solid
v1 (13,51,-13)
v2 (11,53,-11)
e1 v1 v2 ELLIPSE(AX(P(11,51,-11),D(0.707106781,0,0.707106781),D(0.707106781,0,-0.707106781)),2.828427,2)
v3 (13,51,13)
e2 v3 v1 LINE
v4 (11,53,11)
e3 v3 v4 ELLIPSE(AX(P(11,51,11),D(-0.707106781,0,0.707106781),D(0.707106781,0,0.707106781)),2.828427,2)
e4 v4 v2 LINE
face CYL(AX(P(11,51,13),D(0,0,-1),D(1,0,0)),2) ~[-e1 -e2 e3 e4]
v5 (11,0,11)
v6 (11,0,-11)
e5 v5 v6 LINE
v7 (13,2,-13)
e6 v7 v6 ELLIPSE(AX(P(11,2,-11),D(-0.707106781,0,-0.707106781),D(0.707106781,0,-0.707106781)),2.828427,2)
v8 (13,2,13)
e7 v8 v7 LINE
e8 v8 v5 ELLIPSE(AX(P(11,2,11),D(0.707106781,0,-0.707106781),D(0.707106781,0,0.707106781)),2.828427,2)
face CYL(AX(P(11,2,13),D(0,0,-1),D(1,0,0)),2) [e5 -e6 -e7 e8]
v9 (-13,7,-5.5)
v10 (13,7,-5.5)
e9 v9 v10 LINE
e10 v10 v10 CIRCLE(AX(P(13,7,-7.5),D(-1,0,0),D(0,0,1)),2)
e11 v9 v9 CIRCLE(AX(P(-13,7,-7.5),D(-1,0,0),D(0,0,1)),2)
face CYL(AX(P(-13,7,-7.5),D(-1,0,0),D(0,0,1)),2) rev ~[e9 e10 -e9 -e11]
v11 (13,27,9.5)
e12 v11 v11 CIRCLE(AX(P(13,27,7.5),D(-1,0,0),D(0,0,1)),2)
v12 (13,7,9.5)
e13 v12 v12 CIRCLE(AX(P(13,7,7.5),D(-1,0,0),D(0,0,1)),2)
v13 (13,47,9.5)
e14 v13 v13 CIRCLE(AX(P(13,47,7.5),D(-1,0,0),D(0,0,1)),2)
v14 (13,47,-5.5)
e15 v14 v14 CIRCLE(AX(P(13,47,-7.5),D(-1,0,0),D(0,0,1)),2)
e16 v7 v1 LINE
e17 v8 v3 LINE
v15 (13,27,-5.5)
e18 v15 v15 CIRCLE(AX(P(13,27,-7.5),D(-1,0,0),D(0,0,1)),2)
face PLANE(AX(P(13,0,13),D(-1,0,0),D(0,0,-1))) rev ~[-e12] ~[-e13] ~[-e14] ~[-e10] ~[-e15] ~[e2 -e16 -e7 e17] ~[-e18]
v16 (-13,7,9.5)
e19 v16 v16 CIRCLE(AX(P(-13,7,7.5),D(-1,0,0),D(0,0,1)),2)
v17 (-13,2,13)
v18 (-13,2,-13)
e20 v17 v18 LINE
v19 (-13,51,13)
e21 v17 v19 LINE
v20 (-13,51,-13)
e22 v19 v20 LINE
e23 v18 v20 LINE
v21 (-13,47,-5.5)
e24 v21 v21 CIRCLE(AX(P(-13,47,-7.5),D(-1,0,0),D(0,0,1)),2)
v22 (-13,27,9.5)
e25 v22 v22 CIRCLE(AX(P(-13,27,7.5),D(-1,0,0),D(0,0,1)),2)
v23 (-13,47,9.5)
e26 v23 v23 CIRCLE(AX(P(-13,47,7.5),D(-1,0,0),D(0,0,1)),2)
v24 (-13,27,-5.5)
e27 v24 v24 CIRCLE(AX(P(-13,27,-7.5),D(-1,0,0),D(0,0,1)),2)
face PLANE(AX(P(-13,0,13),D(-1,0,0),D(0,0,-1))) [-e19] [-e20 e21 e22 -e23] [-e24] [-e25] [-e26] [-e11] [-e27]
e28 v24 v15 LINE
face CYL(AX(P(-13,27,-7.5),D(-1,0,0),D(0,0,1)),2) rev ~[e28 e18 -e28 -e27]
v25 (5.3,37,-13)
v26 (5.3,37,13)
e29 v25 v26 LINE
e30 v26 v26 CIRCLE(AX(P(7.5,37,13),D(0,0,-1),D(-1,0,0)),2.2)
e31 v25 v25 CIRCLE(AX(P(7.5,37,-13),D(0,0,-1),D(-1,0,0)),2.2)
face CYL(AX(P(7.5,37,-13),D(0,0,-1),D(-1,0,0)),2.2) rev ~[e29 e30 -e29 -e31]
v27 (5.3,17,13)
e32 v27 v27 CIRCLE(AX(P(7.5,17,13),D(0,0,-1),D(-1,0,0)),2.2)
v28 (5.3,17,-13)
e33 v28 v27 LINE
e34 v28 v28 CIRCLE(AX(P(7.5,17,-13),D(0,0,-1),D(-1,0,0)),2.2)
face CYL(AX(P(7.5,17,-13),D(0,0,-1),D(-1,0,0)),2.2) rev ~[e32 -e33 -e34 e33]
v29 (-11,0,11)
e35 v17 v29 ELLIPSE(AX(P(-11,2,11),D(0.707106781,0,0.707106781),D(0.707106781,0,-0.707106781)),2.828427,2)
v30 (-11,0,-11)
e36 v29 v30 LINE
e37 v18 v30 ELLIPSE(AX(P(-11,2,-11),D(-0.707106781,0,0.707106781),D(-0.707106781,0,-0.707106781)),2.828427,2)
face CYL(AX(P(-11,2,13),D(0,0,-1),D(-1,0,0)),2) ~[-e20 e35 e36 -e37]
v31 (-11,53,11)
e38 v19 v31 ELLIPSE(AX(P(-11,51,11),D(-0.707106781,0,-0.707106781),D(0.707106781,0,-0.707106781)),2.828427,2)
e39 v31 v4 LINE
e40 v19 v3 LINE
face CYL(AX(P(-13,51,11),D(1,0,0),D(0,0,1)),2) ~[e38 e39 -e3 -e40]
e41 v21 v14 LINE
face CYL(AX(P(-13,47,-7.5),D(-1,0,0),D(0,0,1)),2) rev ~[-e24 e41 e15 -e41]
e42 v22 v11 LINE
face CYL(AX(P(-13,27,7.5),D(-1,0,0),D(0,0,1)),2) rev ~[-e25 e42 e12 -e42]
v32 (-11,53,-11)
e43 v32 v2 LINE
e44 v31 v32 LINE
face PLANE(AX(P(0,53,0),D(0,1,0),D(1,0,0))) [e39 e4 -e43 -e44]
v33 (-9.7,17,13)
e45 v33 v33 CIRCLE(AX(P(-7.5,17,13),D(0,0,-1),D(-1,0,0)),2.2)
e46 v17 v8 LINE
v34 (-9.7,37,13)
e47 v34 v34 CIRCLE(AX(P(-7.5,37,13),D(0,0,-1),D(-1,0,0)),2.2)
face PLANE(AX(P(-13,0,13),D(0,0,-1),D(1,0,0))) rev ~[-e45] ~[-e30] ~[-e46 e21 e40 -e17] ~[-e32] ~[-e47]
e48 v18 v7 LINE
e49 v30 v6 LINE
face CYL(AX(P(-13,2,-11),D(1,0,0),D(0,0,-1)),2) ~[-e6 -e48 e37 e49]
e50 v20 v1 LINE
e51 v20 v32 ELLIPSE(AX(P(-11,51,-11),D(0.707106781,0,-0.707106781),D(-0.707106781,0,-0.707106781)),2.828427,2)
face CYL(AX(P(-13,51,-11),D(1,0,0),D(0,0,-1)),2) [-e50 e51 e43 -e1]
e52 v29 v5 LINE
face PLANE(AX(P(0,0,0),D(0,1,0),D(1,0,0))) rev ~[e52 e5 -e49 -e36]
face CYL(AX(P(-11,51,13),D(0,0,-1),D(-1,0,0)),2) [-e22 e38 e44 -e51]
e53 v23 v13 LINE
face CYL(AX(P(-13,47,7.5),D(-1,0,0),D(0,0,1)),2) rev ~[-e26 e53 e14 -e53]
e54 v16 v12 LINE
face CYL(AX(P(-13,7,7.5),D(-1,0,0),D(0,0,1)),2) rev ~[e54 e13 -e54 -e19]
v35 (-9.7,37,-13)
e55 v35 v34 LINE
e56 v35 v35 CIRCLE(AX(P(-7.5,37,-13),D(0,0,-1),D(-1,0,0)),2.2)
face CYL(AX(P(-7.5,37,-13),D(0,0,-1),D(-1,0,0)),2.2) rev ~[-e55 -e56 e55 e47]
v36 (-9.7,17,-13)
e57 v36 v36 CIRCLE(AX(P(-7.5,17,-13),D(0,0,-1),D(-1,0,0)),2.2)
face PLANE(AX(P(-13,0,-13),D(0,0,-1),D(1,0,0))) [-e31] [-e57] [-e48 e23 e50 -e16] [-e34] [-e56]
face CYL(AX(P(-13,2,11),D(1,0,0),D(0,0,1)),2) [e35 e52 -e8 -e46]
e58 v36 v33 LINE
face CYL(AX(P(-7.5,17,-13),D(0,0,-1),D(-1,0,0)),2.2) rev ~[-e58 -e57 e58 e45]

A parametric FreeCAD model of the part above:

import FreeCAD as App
import Part
import Sketcher

V = App.Vector
Q = App.Units.Quantity


def edges_at(feature, points):
    """Names of the edges that pass closest to the given points."""
    edges = feature.Shape.Edges
    near = lambda p: min(range(len(edges)), key=lambda i: edges[i].distToShape(Part.Vertex(*p))[0])
    return sorted({f"Edge{near(p) + 1}" for p in points})


def add_polygon(sketch, points):
    """Adds a closed chain of lines whose ends are joined by coincident constraints."""
    first, n = sketch.GeometryCount, len(points)
    for a, b in zip(points, points[1:] + points[:1]):
        sketch.addGeometry(Part.LineSegment(App.Vector(*a, 0), App.Vector(*b, 0)), False)
    for i in range(n):
        sketch.addConstraint(Sketcher.Constraint("Coincident", first + i, 2, first + (i + 1) % n, 1))

doc = App.newDocument("Part")
body = doc.addObject("PartDesign::Body", "Body")

# Sketch on XZ plane
sketch1 = body.newObject("Sketcher::SketchObject", "Sketch")
sketch1.AttachmentSupport = (doc.getObject("XZ_Plane"), [""])
sketch1.MapMode = "FlatFace"
add_polygon(sketch1, [(-13, -13), (-13, 13), (13, 13), (13, -13)])  # lines 0-3
sketch1.addConstraint(Sketcher.Constraint("Vertical", 0))
sketch1.addConstraint(Sketcher.Constraint("Horizontal", 1))
sketch1.addConstraint(Sketcher.Constraint("Vertical", 2))
sketch1.addConstraint(Sketcher.Constraint("Horizontal", 3))
sketch1.addConstraint(Sketcher.Constraint("Symmetric", 0, 2, 2, 2, -1, 1))
sketch1.addConstraint(Sketcher.Constraint("Equal", 3, 0))
sketch1.addConstraint(Sketcher.Constraint("DistanceX", 1, 1, 1, 2, Q("26 mm")))
pad1 = body.newObject("PartDesign::Pad", "Pad")
pad1.Profile = sketch1
pad1.Length = 53
pad1.Reversed = True
doc.recompute()

fillet = body.newObject("PartDesign::Fillet", "Fillet")
fillet.Base = (pad1, edges_at(pad1, [
    (-13, 53, 0),
    (0, 53, 13),
    (13, 53, 0),
    (0, 0, 13),
    (-13, 0, 0),
    (0, 0, -13),
    (13, 0, 0),
    (0, 53, -13),
]))
fillet.Radius = 2

# Sketch on XY plane
sketch2 = body.newObject("Sketcher::SketchObject", "Sketch001")
sketch2.AttachmentSupport = (doc.getObject("XY_Plane"), [""])
sketch2.MapMode = "FlatFace"
sketch2.AttachmentOffset = App.Placement(V(0, 0, 13), App.Rotation())
sketch2.addGeometry(Part.Circle(V(-7.5, 37, 0), V(0, 0, 1), 1.6), False)
sketch2.addConstraint(Sketcher.Constraint("Diameter", 0, Q("3.1 mm")))
sketch2.addConstraint(Sketcher.Constraint("DistanceY", -1, 1, 0, 3, Q("37 mm")))
sketch2.addConstraint(Sketcher.Constraint("DistanceX", 0, 3, -1, 1, Q("7.5 mm")))
pocket1 = body.newObject("PartDesign::Pocket", "Pocket")
pocket1.Profile = sketch2
pocket1.Type = "UpToFirst"

# Sketch on XY plane
sketch3 = body.newObject("Sketcher::SketchObject", "Sketch002")
sketch3.AttachmentSupport = (doc.getObject("XY_Plane"), [""])
sketch3.MapMode = "FlatFace"
sketch3.AttachmentOffset = App.Placement(V(0, 0, 13), App.Rotation())
sketch3.addGeometry(Part.Circle(V(7.5, 37, 0), V(0, 0, 1), 1.6), False)
sketch3.addConstraint(Sketcher.Constraint("Diameter", 0, Q("3.1 mm")))
sketch3.addConstraint(Sketcher.Constraint("DistanceY", -1, 1, 0, 3, Q("37 mm")))
sketch3.addConstraint(Sketcher.Constraint("DistanceX", -1, 1, 0, 3, Q("7.5 mm")))
pocket2 = body.newObject("PartDesign::Pocket", "Pocket001")
pocket2.Profile = sketch3
pocket2.Type = "UpToFirst"

# Sketch on XY plane
sketch4 = body.newObject("Sketcher::SketchObject", "Sketch003")
sketch4.AttachmentSupport = (doc.getObject("XY_Plane"), [""])
sketch4.MapMode = "FlatFace"
sketch4.AttachmentOffset = App.Placement(V(0, 0, 13), App.Rotation())
sketch4.addGeometry(Part.Circle(V(-7.5, 17, 0), V(0, 0, 1), 1.6), False)
sketch4.addConstraint(Sketcher.Constraint("Diameter", 0, Q("3.1 mm")))
sketch4.addConstraint(Sketcher.Constraint("DistanceY", -1, 1, 0, 3, Q("17 mm")))
sketch4.addConstraint(Sketcher.Constraint("DistanceX", 0, 3, -1, 1, Q("7.5 mm")))
pocket3 = body.newObject("PartDesign::Pocket", "Pocket002")
pocket3.Profile = sketch4
pocket3.Type = "UpToFirst"

# Sketch on XY plane
sketch5 = body.newObject("Sketcher::SketchObject", "Sketch004")
sketch5.AttachmentSupport = (doc.getObject("XY_Plane"), [""])
sketch5.MapMode = "FlatFace"
sketch5.AttachmentOffset = App.Placement(V(0, 0, 13), App.Rotation())
sketch5.addGeometry(Part.Circle(V(7.5, 17, 0), V(0, 0, 1), 1.6), False)
sketch5.addConstraint(Sketcher.Constraint("Diameter", 0, Q("3.1 mm")))
sketch5.addConstraint(Sketcher.Constraint("DistanceY", -1, 1, 0, 3, Q("17 mm")))
sketch5.addConstraint(Sketcher.Constraint("DistanceX", -1, 1, 0, 3, Q("7.5 mm")))
pocket4 = body.newObject("PartDesign::Pocket", "Pocket003")
pocket4.Profile = sketch5
pocket4.Type = "UpToFirst"

# Sketch on YZ plane
sketch6 = body.newObject("Sketcher::SketchObject", "Sketch005")
sketch6.AttachmentSupport = (doc.getObject("YZ_Plane"), [""])
sketch6.MapMode = "FlatFace"
sketch6.AttachmentOffset = App.Placement(V(0, 0, -13), App.Rotation())
sketch6.addGeometry(Part.Circle(V(47, -7.5, 0), V(0, 0, 1), 2), False)
sketch6.addConstraint(Sketcher.Constraint("Diameter", 0, Q("4 mm")))
sketch6.addConstraint(Sketcher.Constraint("DistanceX", -1, 1, 0, 3, Q("47 mm")))
sketch6.addConstraint(Sketcher.Constraint("DistanceY", 0, 3, -1, 1, Q("7.5 mm")))
pocket5 = body.newObject("PartDesign::Pocket", "Pocket004")
pocket5.Profile = sketch6
pocket5.Type = "UpToFirst"
pocket5.Reversed = True

# Sketch on YZ plane
sketch7 = body.newObject("Sketcher::SketchObject", "Sketch006")
sketch7.AttachmentSupport = (doc.getObject("YZ_Plane"), [""])
sketch7.MapMode = "FlatFace"
sketch7.AttachmentOffset = App.Placement(V(0, 0, -13), App.Rotation())
sketch7.addGeometry(Part.Circle(V(47, 7.5, 0), V(0, 0, 1), 2), False)
sketch7.addConstraint(Sketcher.Constraint("Diameter", 0, Q("4 mm")))
sketch7.addConstraint(Sketcher.Constraint("DistanceX", -1, 1, 0, 3, Q("47 mm")))
sketch7.addConstraint(Sketcher.Constraint("DistanceY", -1, 1, 0, 3, Q("7.5 mm")))
pocket6 = body.newObject("PartDesign::Pocket", "Pocket005")
pocket6.Profile = sketch7
pocket6.Type = "UpToFirst"
pocket6.Reversed = True

# Sketch on YZ plane
sketch8 = body.newObject("Sketcher::SketchObject", "Sketch007")
sketch8.AttachmentSupport = (doc.getObject("YZ_Plane"), [""])
sketch8.MapMode = "FlatFace"
sketch8.AttachmentOffset = App.Placement(V(0, 0, -13), App.Rotation())
sketch8.addGeometry(Part.Circle(V(27, -7.5, 0), V(0, 0, 1), 2), False)
sketch8.addConstraint(Sketcher.Constraint("Diameter", 0, Q("4 mm")))
sketch8.addConstraint(Sketcher.Constraint("DistanceX", -1, 1, 0, 3, Q("27 mm")))
sketch8.addConstraint(Sketcher.Constraint("DistanceY", 0, 3, -1, 1, Q("7.5 mm")))
pocket7 = body.newObject("PartDesign::Pocket", "Pocket006")
pocket7.Profile = sketch8
pocket7.Type = "UpToFirst"
pocket7.Reversed = True

# Sketch on YZ plane
sketch9 = body.newObject("Sketcher::SketchObject", "Sketch008")
sketch9.AttachmentSupport = (doc.getObject("YZ_Plane"), [""])
sketch9.MapMode = "FlatFace"
sketch9.AttachmentOffset = App.Placement(V(0, 0, -13), App.Rotation())
sketch9.addGeometry(Part.Circle(V(27, 7.5, 0), V(0, 0, 1), 2), False)
sketch9.addConstraint(Sketcher.Constraint("Diameter", 0, Q("4 mm")))
sketch9.addConstraint(Sketcher.Constraint("DistanceX", -1, 1, 0, 3, Q("27 mm")))
sketch9.addConstraint(Sketcher.Constraint("DistanceY", -1, 1, 0, 3, Q("7.5 mm")))
pocket8 = body.newObject("PartDesign::Pocket", "Pocket007")
pocket8.Profile = sketch9
pocket8.Type = "UpToFirst"
pocket8.Reversed = True

# Sketch on YZ plane
sketch10 = body.newObject("Sketcher::SketchObject", "Sketch009")
sketch10.AttachmentSupport = (doc.getObject("YZ_Plane"), [""])
sketch10.MapMode = "FlatFace"
sketch10.AttachmentOffset = App.Placement(V(0, 0, -13), App.Rotation())
sketch10.addGeometry(Part.Circle(V(7, -7.5, 0), V(0, 0, 1), 2), False)
sketch10.addConstraint(Sketcher.Constraint("Diameter", 0, Q("4 mm")))
sketch10.addConstraint(Sketcher.Constraint("DistanceX", -1, 1, 0, 3, Q("7 mm")))
sketch10.addConstraint(Sketcher.Constraint("DistanceY", 0, 3, -1, 1, Q("7.5 mm")))
pocket9 = body.newObject("PartDesign::Pocket", "Pocket008")
pocket9.Profile = sketch10
pocket9.Type = "UpToFirst"
pocket9.Reversed = True

# Sketch on YZ plane
sketch11 = body.newObject("Sketcher::SketchObject", "Sketch010")
sketch11.AttachmentSupport = (doc.getObject("YZ_Plane"), [""])
sketch11.MapMode = "FlatFace"
sketch11.AttachmentOffset = App.Placement(V(0, 0, -13), App.Rotation())
sketch11.addGeometry(Part.Circle(V(7, 7.5, 0), V(0, 0, 1), 2), False)
sketch11.addConstraint(Sketcher.Constraint("Diameter", 0, Q("4 mm")))
sketch11.addConstraint(Sketcher.Constraint("DistanceX", -1, 1, 0, 3, Q("7 mm")))
sketch11.addConstraint(Sketcher.Constraint("DistanceY", -1, 1, 0, 3, Q("7.5 mm")))
pocket10 = body.newObject("PartDesign::Pocket", "Pocket009")
pocket10.Profile = sketch11
pocket10.Type = "UpToFirst"
pocket10.Reversed = True

# Sketch on XY plane
sketch12 = body.newObject("Sketcher::SketchObject", "Sketch011")
sketch12.AttachmentSupport = (doc.getObject("XY_Plane"), [""])
sketch12.MapMode = "FlatFace"
sketch12.AttachmentOffset = App.Placement(V(0, 0, -13), App.Rotation())
sketch12.addGeometry(Part.Circle(V(7.5, 37, 0), V(0, 0, 1), 2.2), False)
sketch12.addConstraint(Sketcher.Constraint("Diameter", 0, Q("4.4 mm")))
sketch12.addConstraint(Sketcher.Constraint("DistanceY", -1, 1, 0, 3, Q("37 mm")))
sketch12.addConstraint(Sketcher.Constraint("DistanceX", -1, 1, 0, 3, Q("7.5 mm")))
pocket11 = body.newObject("PartDesign::Pocket", "Pocket010")
pocket11.Profile = sketch12
pocket11.Length = 26
pocket11.Reversed = True

# Sketch on XY plane
sketch13 = body.newObject("Sketcher::SketchObject", "Sketch012")
sketch13.AttachmentSupport = (doc.getObject("XY_Plane"), [""])
sketch13.MapMode = "FlatFace"
sketch13.AttachmentOffset = App.Placement(V(0, 0, -13), App.Rotation())
sketch13.addGeometry(Part.Circle(V(-7.5, 37, 0), V(0, 0, 1), 2.2), False)
sketch13.addConstraint(Sketcher.Constraint("Diameter", 0, Q("4.4 mm")))
sketch13.addConstraint(Sketcher.Constraint("DistanceY", -1, 1, 0, 3, Q("37 mm")))
sketch13.addConstraint(Sketcher.Constraint("DistanceX", 0, 3, -1, 1, Q("7.5 mm")))
pocket12 = body.newObject("PartDesign::Pocket", "Pocket011")
pocket12.Profile = sketch13
pocket12.Length = 26
pocket12.Reversed = True

# Sketch on XY plane
sketch14 = body.newObject("Sketcher::SketchObject", "Sketch013")
sketch14.AttachmentSupport = (doc.getObject("XY_Plane"), [""])
sketch14.MapMode = "FlatFace"
sketch14.AttachmentOffset = App.Placement(V(0, 0, -13), App.Rotation())
sketch14.addGeometry(Part.Circle(V(-7.5, 17, 0), V(0, 0, 1), 2.2), False)
sketch14.addConstraint(Sketcher.Constraint("Diameter", 0, Q("4.4 mm")))
sketch14.addConstraint(Sketcher.Constraint("DistanceY", -1, 1, 0, 3, Q("17 mm")))
sketch14.addConstraint(Sketcher.Constraint("DistanceX", 0, 3, -1, 1, Q("7.5 mm")))
pocket13 = body.newObject("PartDesign::Pocket", "Pocket012")
pocket13.Profile = sketch14
pocket13.Length = 26
pocket13.Reversed = True

# Sketch on XY plane
sketch15 = body.newObject("Sketcher::SketchObject", "Sketch014")
sketch15.AttachmentSupport = (doc.getObject("XY_Plane"), [""])
sketch15.MapMode = "FlatFace"
sketch15.AttachmentOffset = App.Placement(V(0, 0, -13), App.Rotation())
sketch15.addGeometry(Part.Circle(V(7.5, 17, 0), V(0, 0, 1), 2.2), False)
sketch15.addConstraint(Sketcher.Constraint("Diameter", 0, Q("4.4 mm")))
sketch15.addConstraint(Sketcher.Constraint("DistanceY", -1, 1, 0, 3, Q("17 mm")))
sketch15.addConstraint(Sketcher.Constraint("DistanceX", -1, 1, 0, 3, Q("7.5 mm")))
pocket14 = body.newObject("PartDesign::Pocket", "Pocket013")
pocket14.Profile = sketch15
pocket14.Length = 26
pocket14.Reversed = True

doc.recompute()
